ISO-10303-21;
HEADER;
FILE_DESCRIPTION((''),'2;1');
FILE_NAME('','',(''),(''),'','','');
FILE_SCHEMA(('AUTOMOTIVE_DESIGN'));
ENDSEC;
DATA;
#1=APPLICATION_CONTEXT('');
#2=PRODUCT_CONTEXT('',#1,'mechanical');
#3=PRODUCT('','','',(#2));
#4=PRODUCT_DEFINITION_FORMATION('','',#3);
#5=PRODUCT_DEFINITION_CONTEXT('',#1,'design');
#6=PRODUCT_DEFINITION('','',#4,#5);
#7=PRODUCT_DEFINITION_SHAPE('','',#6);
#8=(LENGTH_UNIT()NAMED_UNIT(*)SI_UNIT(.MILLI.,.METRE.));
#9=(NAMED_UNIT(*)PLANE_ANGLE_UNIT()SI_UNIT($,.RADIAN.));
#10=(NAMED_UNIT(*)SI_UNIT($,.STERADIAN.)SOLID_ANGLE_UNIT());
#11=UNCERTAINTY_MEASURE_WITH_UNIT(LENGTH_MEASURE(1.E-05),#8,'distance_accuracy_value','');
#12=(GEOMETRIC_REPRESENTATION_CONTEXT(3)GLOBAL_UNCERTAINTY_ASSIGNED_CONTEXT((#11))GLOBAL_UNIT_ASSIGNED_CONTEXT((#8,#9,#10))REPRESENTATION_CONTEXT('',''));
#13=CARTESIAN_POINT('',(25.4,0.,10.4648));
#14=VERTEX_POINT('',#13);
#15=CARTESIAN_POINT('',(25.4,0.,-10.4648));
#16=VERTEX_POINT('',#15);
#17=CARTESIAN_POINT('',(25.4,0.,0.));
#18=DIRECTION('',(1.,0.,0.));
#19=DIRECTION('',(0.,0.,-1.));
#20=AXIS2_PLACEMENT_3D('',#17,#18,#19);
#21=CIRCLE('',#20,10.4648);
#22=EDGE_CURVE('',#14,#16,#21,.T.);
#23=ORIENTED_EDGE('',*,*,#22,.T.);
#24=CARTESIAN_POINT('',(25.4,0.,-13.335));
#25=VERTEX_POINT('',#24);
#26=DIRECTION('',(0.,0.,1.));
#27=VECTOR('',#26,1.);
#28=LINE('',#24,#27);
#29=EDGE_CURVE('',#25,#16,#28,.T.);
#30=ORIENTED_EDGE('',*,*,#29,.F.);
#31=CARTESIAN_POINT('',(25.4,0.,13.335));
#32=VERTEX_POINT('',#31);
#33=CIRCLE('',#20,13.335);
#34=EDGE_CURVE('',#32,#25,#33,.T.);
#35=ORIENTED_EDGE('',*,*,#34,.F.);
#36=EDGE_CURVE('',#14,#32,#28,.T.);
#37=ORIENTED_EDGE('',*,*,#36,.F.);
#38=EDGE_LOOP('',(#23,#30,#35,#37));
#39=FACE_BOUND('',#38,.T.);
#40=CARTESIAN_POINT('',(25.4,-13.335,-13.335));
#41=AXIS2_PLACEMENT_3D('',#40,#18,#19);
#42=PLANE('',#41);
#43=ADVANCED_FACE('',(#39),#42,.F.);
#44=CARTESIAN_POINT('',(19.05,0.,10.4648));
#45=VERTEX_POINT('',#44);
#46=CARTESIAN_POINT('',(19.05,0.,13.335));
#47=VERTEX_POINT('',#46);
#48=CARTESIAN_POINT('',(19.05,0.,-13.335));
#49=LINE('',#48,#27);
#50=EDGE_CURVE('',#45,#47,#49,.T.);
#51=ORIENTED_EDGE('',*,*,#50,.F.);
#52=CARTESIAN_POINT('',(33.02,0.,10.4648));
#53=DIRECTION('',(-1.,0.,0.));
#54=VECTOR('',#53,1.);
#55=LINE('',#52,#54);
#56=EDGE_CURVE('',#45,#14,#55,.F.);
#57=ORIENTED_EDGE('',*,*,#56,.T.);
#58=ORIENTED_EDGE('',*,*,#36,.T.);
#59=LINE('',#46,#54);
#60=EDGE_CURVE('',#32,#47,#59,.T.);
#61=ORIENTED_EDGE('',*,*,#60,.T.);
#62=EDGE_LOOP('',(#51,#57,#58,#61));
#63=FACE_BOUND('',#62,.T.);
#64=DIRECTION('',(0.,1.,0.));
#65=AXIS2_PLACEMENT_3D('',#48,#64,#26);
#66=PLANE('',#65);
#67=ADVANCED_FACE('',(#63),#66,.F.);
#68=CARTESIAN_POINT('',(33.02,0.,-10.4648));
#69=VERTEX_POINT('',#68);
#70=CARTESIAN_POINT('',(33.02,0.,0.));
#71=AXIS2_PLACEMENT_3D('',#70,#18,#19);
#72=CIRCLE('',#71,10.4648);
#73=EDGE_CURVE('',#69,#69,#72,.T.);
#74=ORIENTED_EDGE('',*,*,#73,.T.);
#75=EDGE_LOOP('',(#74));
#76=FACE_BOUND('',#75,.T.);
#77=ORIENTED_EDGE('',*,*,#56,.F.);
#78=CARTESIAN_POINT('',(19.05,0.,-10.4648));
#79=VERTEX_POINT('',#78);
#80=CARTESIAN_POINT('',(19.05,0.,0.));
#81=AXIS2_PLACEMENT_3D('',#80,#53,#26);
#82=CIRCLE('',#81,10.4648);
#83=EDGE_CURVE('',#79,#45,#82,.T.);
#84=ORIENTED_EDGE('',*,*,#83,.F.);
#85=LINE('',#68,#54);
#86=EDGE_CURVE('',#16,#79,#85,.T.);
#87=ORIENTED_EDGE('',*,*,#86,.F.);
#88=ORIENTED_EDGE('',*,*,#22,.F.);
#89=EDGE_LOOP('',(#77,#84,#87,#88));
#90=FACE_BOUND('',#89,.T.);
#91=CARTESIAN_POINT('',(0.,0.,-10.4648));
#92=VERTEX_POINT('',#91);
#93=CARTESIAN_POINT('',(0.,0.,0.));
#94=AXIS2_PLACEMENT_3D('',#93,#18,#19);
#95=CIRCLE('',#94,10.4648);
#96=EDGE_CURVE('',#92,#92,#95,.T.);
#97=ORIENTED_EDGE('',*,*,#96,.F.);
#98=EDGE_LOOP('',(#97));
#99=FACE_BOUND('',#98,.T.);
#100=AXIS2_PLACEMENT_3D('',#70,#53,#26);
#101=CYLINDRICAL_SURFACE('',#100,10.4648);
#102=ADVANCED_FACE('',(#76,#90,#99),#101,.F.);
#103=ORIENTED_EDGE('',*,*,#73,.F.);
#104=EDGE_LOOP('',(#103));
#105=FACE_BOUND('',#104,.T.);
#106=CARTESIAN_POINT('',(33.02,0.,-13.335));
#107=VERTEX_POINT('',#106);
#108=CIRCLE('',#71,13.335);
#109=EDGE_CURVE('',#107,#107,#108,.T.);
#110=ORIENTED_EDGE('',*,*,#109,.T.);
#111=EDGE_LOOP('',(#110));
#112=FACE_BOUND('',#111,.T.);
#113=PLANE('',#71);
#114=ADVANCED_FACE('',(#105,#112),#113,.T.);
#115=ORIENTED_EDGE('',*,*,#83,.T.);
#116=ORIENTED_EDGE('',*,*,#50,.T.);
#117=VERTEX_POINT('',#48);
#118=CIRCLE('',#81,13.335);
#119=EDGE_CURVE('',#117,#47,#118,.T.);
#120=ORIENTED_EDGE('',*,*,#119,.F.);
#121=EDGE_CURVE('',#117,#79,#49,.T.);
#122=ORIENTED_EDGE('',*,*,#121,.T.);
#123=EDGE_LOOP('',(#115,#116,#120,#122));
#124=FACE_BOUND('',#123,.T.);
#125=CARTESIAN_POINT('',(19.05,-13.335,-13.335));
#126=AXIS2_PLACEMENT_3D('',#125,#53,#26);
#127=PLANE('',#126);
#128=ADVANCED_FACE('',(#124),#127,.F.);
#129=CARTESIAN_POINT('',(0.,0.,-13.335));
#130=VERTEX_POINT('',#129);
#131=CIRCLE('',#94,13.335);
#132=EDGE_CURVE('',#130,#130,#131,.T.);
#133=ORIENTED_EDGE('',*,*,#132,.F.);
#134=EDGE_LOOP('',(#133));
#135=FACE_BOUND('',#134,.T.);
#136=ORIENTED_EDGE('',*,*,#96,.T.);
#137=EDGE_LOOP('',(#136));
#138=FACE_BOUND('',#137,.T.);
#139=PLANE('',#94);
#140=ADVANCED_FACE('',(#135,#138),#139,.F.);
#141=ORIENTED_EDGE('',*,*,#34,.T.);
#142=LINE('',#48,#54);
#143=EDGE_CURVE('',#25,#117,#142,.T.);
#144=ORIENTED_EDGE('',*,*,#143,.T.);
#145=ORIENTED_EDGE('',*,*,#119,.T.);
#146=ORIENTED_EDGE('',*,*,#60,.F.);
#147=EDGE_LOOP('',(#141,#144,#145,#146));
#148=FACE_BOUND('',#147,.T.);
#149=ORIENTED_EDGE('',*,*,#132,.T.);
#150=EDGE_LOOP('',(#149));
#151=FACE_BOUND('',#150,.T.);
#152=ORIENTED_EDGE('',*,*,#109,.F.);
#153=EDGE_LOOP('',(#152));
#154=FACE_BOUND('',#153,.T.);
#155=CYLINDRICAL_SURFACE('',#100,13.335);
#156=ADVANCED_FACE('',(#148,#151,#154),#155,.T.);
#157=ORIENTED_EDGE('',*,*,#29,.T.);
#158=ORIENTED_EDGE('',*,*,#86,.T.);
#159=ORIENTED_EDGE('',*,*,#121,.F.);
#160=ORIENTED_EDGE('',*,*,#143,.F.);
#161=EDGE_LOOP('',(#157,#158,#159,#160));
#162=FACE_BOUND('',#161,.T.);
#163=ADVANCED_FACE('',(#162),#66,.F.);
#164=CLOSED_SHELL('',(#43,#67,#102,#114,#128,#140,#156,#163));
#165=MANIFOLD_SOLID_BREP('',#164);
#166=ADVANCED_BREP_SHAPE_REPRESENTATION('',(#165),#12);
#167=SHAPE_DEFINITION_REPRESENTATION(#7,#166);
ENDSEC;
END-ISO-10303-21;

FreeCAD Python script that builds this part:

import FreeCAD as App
import Part
import Sketcher

V = App.Vector
Q = App.Units.Quantity


def add_polygon(sketch, points):
    """Adds a closed chain of lines whose ends are joined by coincident constraints."""
    first, n = sketch.GeometryCount, len(points)
    for a, b in zip(points, points[1:] + points[:1]):
        sketch.addGeometry(Part.LineSegment(App.Vector(*a, 0), App.Vector(*b, 0)), False)
    for i in range(n):
        sketch.addConstraint(Sketcher.Constraint("Coincident", first + i, 2, first + (i + 1) % n, 1))

doc = App.newDocument("Part")
body = doc.addObject("PartDesign::Body", "Body")

# Sketch on YZ plane
sketch1 = body.newObject("Sketcher::SketchObject", "Sketch")
sketch1.AttachmentSupport = (doc.getObject("YZ_Plane"), [""])
sketch1.MapMode = "FlatFace"
sketch1.addGeometry(Part.Circle(V(0, 0, 0), V(0, 0, 1), 13), False)
sketch1.addGeometry(Part.Circle(V(0, 0, 0), V(0, 0, 1), 10), False)
sketch1.addConstraint(Sketcher.Constraint("Coincident", 0, 3, -1, 1))
sketch1.addConstraint(Sketcher.Constraint("Coincident", 1, 3, -1, 1))
sketch1.addConstraint(Sketcher.Constraint("Diameter", 0, Q("1.05 in")))
sketch1.addConstraint(Sketcher.Constraint("Diameter", 1, Q("0.824 in")))
pad1 = body.newObject("PartDesign::Pad", "Pad")
pad1.Profile = sketch1
pad1.Length = Q("1.3 in")

# Sketch on XY plane
sketch2 = body.newObject("Sketcher::SketchObject", "Sketch001")
sketch2.AttachmentSupport = (doc.getObject("XY_Plane"), [""])
sketch2.MapMode = "FlatFace"
add_polygon(sketch2, [(19, 0), (19, -13), (25, -13), (25, 0)])  # lines 0-3
sketch2.addConstraint(Sketcher.Constraint("Vertical", 0))
sketch2.addConstraint(Sketcher.Constraint("Horizontal", 1))
sketch2.addConstraint(Sketcher.Constraint("Vertical", 2))
sketch2.addConstraint(Sketcher.Constraint("Horizontal", 3))
sketch2.addConstraint(Sketcher.Constraint("PointOnObject", 2, 2, -1))
sketch2.addConstraint(Sketcher.Constraint("DistanceX", -1, 1, 1, 2, Q("1 in")))
sketch2.addConstraint(Sketcher.Constraint("DistanceX", 1, 1, 1, 2, Q("0.25 in")))
sketch2.addConstraint(Sketcher.Constraint("DistanceY", 0, 2, 0, 1, Q("0.525 in")))
pocket1 = body.newObject("PartDesign::Pocket", "Pocket")
pocket1.Profile = sketch2
pocket1.Type = "ThroughAll"
pocket1.Midplane = True

doc.recompute()
